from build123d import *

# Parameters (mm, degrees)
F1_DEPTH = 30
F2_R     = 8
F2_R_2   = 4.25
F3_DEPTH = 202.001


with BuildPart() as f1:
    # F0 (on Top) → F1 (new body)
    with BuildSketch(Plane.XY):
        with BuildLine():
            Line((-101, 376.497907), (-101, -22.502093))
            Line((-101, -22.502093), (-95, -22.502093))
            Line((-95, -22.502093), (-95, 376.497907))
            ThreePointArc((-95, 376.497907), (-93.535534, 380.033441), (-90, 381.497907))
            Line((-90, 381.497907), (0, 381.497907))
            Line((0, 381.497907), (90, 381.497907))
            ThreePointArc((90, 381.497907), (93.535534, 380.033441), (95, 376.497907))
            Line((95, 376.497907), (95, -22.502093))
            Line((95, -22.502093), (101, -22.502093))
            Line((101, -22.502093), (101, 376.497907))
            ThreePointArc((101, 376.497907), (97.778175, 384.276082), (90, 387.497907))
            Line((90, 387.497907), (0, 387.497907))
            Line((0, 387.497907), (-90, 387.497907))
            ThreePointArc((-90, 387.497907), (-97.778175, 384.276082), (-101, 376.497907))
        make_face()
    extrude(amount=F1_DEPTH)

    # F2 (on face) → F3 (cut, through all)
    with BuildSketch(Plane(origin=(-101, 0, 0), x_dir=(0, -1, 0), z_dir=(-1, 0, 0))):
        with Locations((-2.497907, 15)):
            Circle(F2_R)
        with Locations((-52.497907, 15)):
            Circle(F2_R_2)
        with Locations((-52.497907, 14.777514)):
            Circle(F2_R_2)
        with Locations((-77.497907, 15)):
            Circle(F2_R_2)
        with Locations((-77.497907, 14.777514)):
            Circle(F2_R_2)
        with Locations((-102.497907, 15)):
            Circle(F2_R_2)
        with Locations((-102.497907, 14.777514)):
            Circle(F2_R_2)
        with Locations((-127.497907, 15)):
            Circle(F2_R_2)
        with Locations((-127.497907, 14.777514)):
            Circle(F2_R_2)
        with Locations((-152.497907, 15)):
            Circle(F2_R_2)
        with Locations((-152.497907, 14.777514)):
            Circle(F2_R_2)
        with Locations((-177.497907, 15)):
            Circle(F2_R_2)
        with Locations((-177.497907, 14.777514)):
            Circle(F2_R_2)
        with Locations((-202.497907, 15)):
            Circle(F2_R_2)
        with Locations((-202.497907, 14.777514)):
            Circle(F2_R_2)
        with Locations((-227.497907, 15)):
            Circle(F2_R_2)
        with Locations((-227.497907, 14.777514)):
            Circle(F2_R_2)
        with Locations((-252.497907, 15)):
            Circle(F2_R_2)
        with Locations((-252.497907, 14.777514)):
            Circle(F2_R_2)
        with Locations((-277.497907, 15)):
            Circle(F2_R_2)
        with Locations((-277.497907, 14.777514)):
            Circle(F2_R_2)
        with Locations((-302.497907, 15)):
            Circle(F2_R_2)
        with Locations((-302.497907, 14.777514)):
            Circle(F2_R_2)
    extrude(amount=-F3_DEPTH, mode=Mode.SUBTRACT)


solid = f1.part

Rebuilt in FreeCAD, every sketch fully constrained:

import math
import FreeCAD as App
import Part
import Sketcher

V = App.Vector
Q = App.Units.Quantity

doc = App.newDocument("Part")
body = doc.addObject("PartDesign::Body", "Body")

# Sketch on XY plane
sketch1 = doc.addObject("Sketcher::SketchObject", "Sketch")
body.addObject(sketch1)
sketch1.AttachmentSupport = (doc.XY_Plane, [""])
sketch1.MapMode = "FlatFace"
sketch1.addGeometry(Part.LineSegment(V(-101, 376.497907, 0), V(-101, -22.502093, 0)), False)
sketch1.addGeometry(Part.LineSegment(V(-101, -22.502093, 0), V(-95, -22.502093, 0)), False)
sketch1.addGeometry(Part.LineSegment(V(-95, -22.502093, 0), V(-95, 376.497907, 0)), False)
sketch1.addGeometry(Part.ArcOfCircle(Part.Circle(V(-90, 376.497907, 0), V(0, 0, 1), 5), math.radians(89.999996), math.radians(180.000004)), False)
sketch1.addGeometry(Part.LineSegment(V(-90, 381.497907, 0), V(90, 381.497907, 0)), False)
sketch1.addGeometry(Part.ArcOfCircle(Part.Circle(V(90, 376.497907, 0), V(0, 0, 1), 5), math.radians(-0.000004), math.radians(90.000004)), False)
sketch1.addGeometry(Part.LineSegment(V(95, 376.497907, 0), V(95, -22.502093, 0)), False)
sketch1.addGeometry(Part.LineSegment(V(95, -22.502093, 0), V(101, -22.502093, 0)), False)
sketch1.addGeometry(Part.LineSegment(V(101, -22.502093, 0), V(101, 376.497907, 0)), False)
sketch1.addGeometry(Part.ArcOfCircle(Part.Circle(V(90.000001, 376.497908, 0), V(0, 0, 1), 10.999999), math.radians(-0.000007), math.radians(90.000007)), False)
sketch1.addGeometry(Part.LineSegment(V(90, 387.497907, 0), V(-90, 387.497907, 0)), False)
sketch1.addGeometry(Part.ArcOfCircle(Part.Circle(V(-90.000001, 376.497908, 0), V(0, 0, 1), 10.999999), math.radians(89.999993), math.radians(180.000007)), False)
sketch1.addConstraint(Sketcher.Constraint("Coincident", 0, 2, 1, 1))
sketch1.addConstraint(Sketcher.Constraint("Coincident", 1, 2, 2, 1))
sketch1.addConstraint(Sketcher.Constraint("Tangent", 2, 2, 3, 2))
sketch1.addConstraint(Sketcher.Constraint("Tangent", 3, 1, 4, 1))
sketch1.addConstraint(Sketcher.Constraint("Tangent", 4, 2, 5, 2))
sketch1.addConstraint(Sketcher.Constraint("Tangent", 5, 1, 6, 1))
sketch1.addConstraint(Sketcher.Constraint("Coincident", 6, 2, 7, 1))
sketch1.addConstraint(Sketcher.Constraint("Coincident", 7, 2, 8, 1))
sketch1.addConstraint(Sketcher.Constraint("Tangent", 8, 2, 9, 1))
sketch1.addConstraint(Sketcher.Constraint("Tangent", 9, 2, 10, 1))
sketch1.addConstraint(Sketcher.Constraint("Tangent", 10, 2, 11, 1))
sketch1.addConstraint(Sketcher.Constraint("Tangent", 11, 2, 0, 1))
sketch1.addConstraint(Sketcher.Constraint("Vertical", 0))
sketch1.addConstraint(Sketcher.Constraint("Horizontal", 1))
sketch1.addConstraint(Sketcher.Constraint("Vertical", 2))
sketch1.addConstraint(Sketcher.Constraint("Horizontal", 4))
sketch1.addConstraint(Sketcher.Constraint("Vertical", 6))
sketch1.addConstraint(Sketcher.Constraint("Horizontal", 7))
sketch1.addConstraint(Sketcher.Constraint("Vertical", 8))
sketch1.addConstraint(Sketcher.Constraint("Horizontal", 10))
sketch1.addConstraint(Sketcher.Constraint("Coincident", 9, 3, 5, 3))
sketch1.addConstraint(Sketcher.Constraint("Coincident", 11, 3, 3, 3))
sketch1.addConstraint(Sketcher.Constraint("Equal", 3, 5))
sketch1.addConstraint(Sketcher.Constraint("Symmetric", 1, 2, 6, 2, -2))
sketch1.addConstraint(Sketcher.Constraint("Radius", 3, Q("5 mm")))
sketch1.addConstraint(Sketcher.Constraint("Radius", 9, Q("10.999999 mm")))
sketch1.addConstraint(Sketcher.Constraint("DistanceX", 4, 1, 4, 2, Q("180 mm")))
sketch1.addConstraint(Sketcher.Constraint("DistanceY", 0, 2, 0, 1, Q("399 mm")))
sketch1.addConstraint(Sketcher.Constraint("DistanceY", -1, 1, 9, 3, Q("376.497908 mm")))
pad1 = doc.addObject("PartDesign::Pad", "Pad")
body.addObject(pad1)
pad1.Profile = sketch1
pad1.Length = 30

# Sketch on YZ plane
sketch2 = doc.addObject("Sketcher::SketchObject", "Sketch001")
body.addObject(sketch2)
sketch2.AttachmentSupport = (doc.YZ_Plane, [""])
sketch2.MapMode = "FlatFace"
sketch2.AttachmentOffset = App.Placement(V(0, 0, -101), App.Rotation())
sketch2.addGeometry(Part.Circle(V(2.497907, 15, 0), V(0, 0, 1), 8), False)
sketch2.addGeometry(Part.ArcOfCircle(Part.Circle(V(52.497907, 15, 0), V(0, 0, 1), 4.25), math.radians(-1.499878), math.radians(181.499878)), False)
sketch2.addGeometry(Part.ArcOfCircle(Part.Circle(V(52.497907, 14.777514, 0), V(0, 0, 1), 4.25), math.radians(178.500122), math.radians(361.499878)), False)
sketch2.addGeometry(Part.ArcOfCircle(Part.Circle(V(77.497907, 15, 0), V(0, 0, 1), 4.25), math.radians(-1.499878), math.radians(181.499878)), False)
sketch2.addGeometry(Part.ArcOfCircle(Part.Circle(V(77.497907, 14.777514, 0), V(0, 0, 1), 4.25), math.radians(178.500122), math.radians(361.499878)), False)
sketch2.addGeometry(Part.ArcOfCircle(Part.Circle(V(102.497907, 15, 0), V(0, 0, 1), 4.25), math.radians(-1.499878), math.radians(181.499878)), False)
sketch2.addGeometry(Part.ArcOfCircle(Part.Circle(V(102.497907, 14.777514, 0), V(0, 0, 1), 4.25), math.radians(178.500122), math.radians(361.499878)), False)
sketch2.addGeometry(Part.ArcOfCircle(Part.Circle(V(127.497907, 15, 0), V(0, 0, 1), 4.25), math.radians(-1.499878), math.radians(181.499878)), False)
sketch2.addGeometry(Part.ArcOfCircle(Part.Circle(V(127.497907, 14.777514, 0), V(0, 0, 1), 4.25), math.radians(178.500122), math.radians(361.499878)), False)
sketch2.addGeometry(Part.ArcOfCircle(Part.Circle(V(152.497907, 15, 0), V(0, 0, 1), 4.25), math.radians(-1.499878), math.radians(181.499878)), False)
sketch2.addGeometry(Part.ArcOfCircle(Part.Circle(V(152.497907, 14.777514, 0), V(0, 0, 1), 4.25), math.radians(178.500122), math.radians(361.499878)), False)
sketch2.addGeometry(Part.ArcOfCircle(Part.Circle(V(177.497907, 15, 0), V(0, 0, 1), 4.25), math.radians(-1.499878), math.radians(181.499878)), False)
sketch2.addGeometry(Part.ArcOfCircle(Part.Circle(V(177.497907, 14.777514, 0), V(0, 0, 1), 4.25), math.radians(178.500122), math.radians(361.499878)), False)
sketch2.addGeometry(Part.ArcOfCircle(Part.Circle(V(202.497907, 15, 0), V(0, 0, 1), 4.25), math.radians(-1.499878), math.radians(181.499878)), False)
sketch2.addGeometry(Part.ArcOfCircle(Part.Circle(V(202.497907, 14.777514, 0), V(0, 0, 1), 4.25), math.radians(178.500122), math.radians(361.499878)), False)
sketch2.addGeometry(Part.ArcOfCircle(Part.Circle(V(227.497907, 15, 0), V(0, 0, 1), 4.25), math.radians(-1.499878), math.radians(181.499878)), False)
sketch2.addGeometry(Part.ArcOfCircle(Part.Circle(V(227.497907, 14.777514, 0), V(0, 0, 1), 4.25), math.radians(178.500122), math.radians(361.499878)), False)
sketch2.addGeometry(Part.ArcOfCircle(Part.Circle(V(252.497907, 15, 0), V(0, 0, 1), 4.25), math.radians(-1.499878), math.radians(181.499878)), False)
sketch2.addGeometry(Part.ArcOfCircle(Part.Circle(V(252.497907, 14.777514, 0), V(0, 0, 1), 4.25), math.radians(178.500122), math.radians(361.499878)), False)
sketch2.addGeometry(Part.ArcOfCircle(Part.Circle(V(277.497907, 15, 0), V(0, 0, 1), 4.25), math.radians(-1.499878), math.radians(181.499878)), False)
sketch2.addGeometry(Part.ArcOfCircle(Part.Circle(V(277.497907, 14.777514, 0), V(0, 0, 1), 4.25), math.radians(178.500122), math.radians(361.499878)), False)
sketch2.addGeometry(Part.ArcOfCircle(Part.Circle(V(302.497907, 15, 0), V(0, 0, 1), 4.25), math.radians(-1.499878), math.radians(181.499878)), False)
sketch2.addGeometry(Part.ArcOfCircle(Part.Circle(V(302.497907, 14.777514, 0), V(0, 0, 1), 4.25), math.radians(178.500122), math.radians(361.499878)), False)
sketch2.addConstraint(Sketcher.Constraint("Coincident", 1, 1, 2, 2))
sketch2.addConstraint(Sketcher.Constraint("Coincident", 2, 1, 1, 2))
sketch2.addConstraint(Sketcher.Constraint("Coincident", 3, 1, 4, 2))
sketch2.addConstraint(Sketcher.Constraint("Coincident", 4, 1, 3, 2))
sketch2.addConstraint(Sketcher.Constraint("Coincident", 5, 1, 6, 2))
sketch2.addConstraint(Sketcher.Constraint("Coincident", 6, 1, 5, 2))
sketch2.addConstraint(Sketcher.Constraint("Coincident", 7, 1, 8, 2))
sketch2.addConstraint(Sketcher.Constraint("Coincident", 8, 1, 7, 2))
sketch2.addConstraint(Sketcher.Constraint("Coincident", 9, 1, 10, 2))
sketch2.addConstraint(Sketcher.Constraint("Coincident", 10, 1, 9, 2))
sketch2.addConstraint(Sketcher.Constraint("Coincident", 11, 1, 12, 2))
sketch2.addConstraint(Sketcher.Constraint("Coincident", 12, 1, 11, 2))
sketch2.addConstraint(Sketcher.Constraint("Coincident", 13, 1, 14, 2))
sketch2.addConstraint(Sketcher.Constraint("Coincident", 14, 1, 13, 2))
sketch2.addConstraint(Sketcher.Constraint("Coincident", 15, 1, 16, 2))
sketch2.addConstraint(Sketcher.Constraint("Coincident", 16, 1, 15, 2))
sketch2.addConstraint(Sketcher.Constraint("Coincident", 17, 1, 18, 2))
sketch2.addConstraint(Sketcher.Constraint("Coincident", 18, 1, 17, 2))
sketch2.addConstraint(Sketcher.Constraint("Coincident", 19, 1, 20, 2))
sketch2.addConstraint(Sketcher.Constraint("Coincident", 20, 1, 19, 2))
sketch2.addConstraint(Sketcher.Constraint("Coincident", 21, 1, 22, 2))
sketch2.addConstraint(Sketcher.Constraint("Coincident", 22, 1, 21, 2))
sketch2.addConstraint(Sketcher.Constraint("Equal", 1, 2))
sketch2.addConstraint(Sketcher.Constraint("Equal", 2, 3))
sketch2.addConstraint(Sketcher.Constraint("Equal", 3, 4))
sketch2.addConstraint(Sketcher.Constraint("Equal", 4, 5))
sketch2.addConstraint(Sketcher.Constraint("Equal", 5, 6))
sketch2.addConstraint(Sketcher.Constraint("Equal", 6, 7))
sketch2.addConstraint(Sketcher.Constraint("Equal", 7, 8))
sketch2.addConstraint(Sketcher.Constraint("Equal", 8, 9))
sketch2.addConstraint(Sketcher.Constraint("Equal", 9, 10))
sketch2.addConstraint(Sketcher.Constraint("Equal", 10, 11))
sketch2.addConstraint(Sketcher.Constraint("Equal", 11, 12))
sketch2.addConstraint(Sketcher.Constraint("Equal", 12, 13))
sketch2.addConstraint(Sketcher.Constraint("Equal", 13, 14))
sketch2.addConstraint(Sketcher.Constraint("Equal", 14, 15))
sketch2.addConstraint(Sketcher.Constraint("Equal", 15, 16))
sketch2.addConstraint(Sketcher.Constraint("Equal", 16, 17))
sketch2.addConstraint(Sketcher.Constraint("Equal", 17, 18))
sketch2.addConstraint(Sketcher.Constraint("Equal", 18, 19))
sketch2.addConstraint(Sketcher.Constraint("Equal", 19, 20))
sketch2.addConstraint(Sketcher.Constraint("Equal", 20, 21))
sketch2.addConstraint(Sketcher.Constraint("Equal", 21, 22))
sketch2.addConstraint(Sketcher.Constraint("Horizontal", 0, 3, 1, 3))
sketch2.addConstraint(Sketcher.Constraint("Horizontal", 1, 3, 3, 3))
sketch2.addConstraint(Sketcher.Constraint("Horizontal", 2, 3, 4, 3))
sketch2.addConstraint(Sketcher.Constraint("Horizontal", 3, 3, 5, 3))
sketch2.addConstraint(Sketcher.Constraint("Horizontal", 4, 3, 6, 3))
sketch2.addConstraint(Sketcher.Constraint("Horizontal", 5, 3, 7, 3))
sketch2.addConstraint(Sketcher.Constraint("Horizontal", 6, 3, 8, 3))
sketch2.addConstraint(Sketcher.Constraint("Horizontal", 7, 3, 9, 3))
sketch2.addConstraint(Sketcher.Constraint("Horizontal", 8, 3, 10, 3))
sketch2.addConstraint(Sketcher.Constraint("Horizontal", 9, 3, 11, 3))
sketch2.addConstraint(Sketcher.Constraint("Horizontal", 10, 3, 12, 3))
sketch2.addConstraint(Sketcher.Constraint("Horizontal", 11, 3, 13, 3))
sketch2.addConstraint(Sketcher.Constraint("Horizontal", 12, 3, 14, 3))
sketch2.addConstraint(Sketcher.Constraint("Horizontal", 13, 3, 15, 3))
sketch2.addConstraint(Sketcher.Constraint("Horizontal", 14, 3, 16, 3))
sketch2.addConstraint(Sketcher.Constraint("Horizontal", 15, 3, 17, 3))
sketch2.addConstraint(Sketcher.Constraint("Horizontal", 16, 3, 18, 3))
sketch2.addConstraint(Sketcher.Constraint("Horizontal", 17, 3, 19, 3))
sketch2.addConstraint(Sketcher.Constraint("Horizontal", 18, 3, 20, 3))
sketch2.addConstraint(Sketcher.Constraint("Horizontal", 19, 3, 21, 3))
sketch2.addConstraint(Sketcher.Constraint("Horizontal", 20, 3, 22, 3))
sketch2.addConstraint(Sketcher.Constraint("Horizontal", 1, 1, 2, 1))
sketch2.addConstraint(Sketcher.Constraint("Horizontal", 2, 1, 3, 1))
sketch2.addConstraint(Sketcher.Constraint("Horizontal", 4, 1, 5, 1))
sketch2.addConstraint(Sketcher.Constraint("Horizontal", 6, 1, 7, 1))
sketch2.addConstraint(Sketcher.Constraint("Horizontal", 8, 1, 9, 1))
sketch2.addConstraint(Sketcher.Constraint("Horizontal", 10, 1, 11, 1))
sketch2.addConstraint(Sketcher.Constraint("Horizontal", 12, 1, 13, 1))
sketch2.addConstraint(Sketcher.Constraint("Horizontal", 14, 1, 15, 1))
sketch2.addConstraint(Sketcher.Constraint("Horizontal", 16, 1, 17, 1))
sketch2.addConstraint(Sketcher.Constraint("Horizontal", 18, 1, 19, 1))
sketch2.addConstraint(Sketcher.Constraint("Horizontal", 20, 1, 21, 1))
sketch2.addConstraint(Sketcher.Constraint("Diameter", 0, Q("16 mm")))
sketch2.addConstraint(Sketcher.Constraint("Radius", 1, Q("4.25 mm")))
sketch2.addConstraint(Sketcher.Constraint("DistanceY", -1, 1, 0, 3, Q("15 mm")))
sketch2.addConstraint(Sketcher.Constraint("DistanceX", 0, 3, 1, 3, Q("50 mm")))
sketch2.addConstraint(Sketcher.Constraint("DistanceX", 1, 3, 3, 3, Q("25 mm")))
sketch2.addConstraint(Sketcher.Constraint("DistanceX", 3, 3, 5, 3, Q("25 mm")))
sketch2.addConstraint(Sketcher.Constraint("DistanceX", 5, 3, 7, 3, Q("25 mm")))
sketch2.addConstraint(Sketcher.Constraint("DistanceX", 7, 3, 9, 3, Q("25 mm")))
sketch2.addConstraint(Sketcher.Constraint("DistanceX", 9, 3, 11, 3, Q("25 mm")))
sketch2.addConstraint(Sketcher.Constraint("DistanceX", 11, 3, 13, 3, Q("25 mm")))
sketch2.addConstraint(Sketcher.Constraint("DistanceX", 13, 3, 15, 3, Q("25 mm")))
sketch2.addConstraint(Sketcher.Constraint("DistanceX", 15, 3, 17, 3, Q("25 mm")))
sketch2.addConstraint(Sketcher.Constraint("DistanceX", 17, 3, 19, 3, Q("25 mm")))
sketch2.addConstraint(Sketcher.Constraint("DistanceX", 19, 3, 21, 3, Q("25 mm")))
sketch2.addConstraint(Sketcher.Constraint("DistanceX", -1, 1, 1, 1, Q("56.746451 mm")))
sketch2.addConstraint(Sketcher.Constraint("DistanceX", -1, 1, 0, 3, Q("2.497907 mm")))
pocket1 = doc.addObject("PartDesign::Pocket", "Pocket")
body.addObject(pocket1)
pocket1.Profile = sketch2
pocket1.Type = "ThroughAll"
pocket1.Reversed = True

doc.recompute()
